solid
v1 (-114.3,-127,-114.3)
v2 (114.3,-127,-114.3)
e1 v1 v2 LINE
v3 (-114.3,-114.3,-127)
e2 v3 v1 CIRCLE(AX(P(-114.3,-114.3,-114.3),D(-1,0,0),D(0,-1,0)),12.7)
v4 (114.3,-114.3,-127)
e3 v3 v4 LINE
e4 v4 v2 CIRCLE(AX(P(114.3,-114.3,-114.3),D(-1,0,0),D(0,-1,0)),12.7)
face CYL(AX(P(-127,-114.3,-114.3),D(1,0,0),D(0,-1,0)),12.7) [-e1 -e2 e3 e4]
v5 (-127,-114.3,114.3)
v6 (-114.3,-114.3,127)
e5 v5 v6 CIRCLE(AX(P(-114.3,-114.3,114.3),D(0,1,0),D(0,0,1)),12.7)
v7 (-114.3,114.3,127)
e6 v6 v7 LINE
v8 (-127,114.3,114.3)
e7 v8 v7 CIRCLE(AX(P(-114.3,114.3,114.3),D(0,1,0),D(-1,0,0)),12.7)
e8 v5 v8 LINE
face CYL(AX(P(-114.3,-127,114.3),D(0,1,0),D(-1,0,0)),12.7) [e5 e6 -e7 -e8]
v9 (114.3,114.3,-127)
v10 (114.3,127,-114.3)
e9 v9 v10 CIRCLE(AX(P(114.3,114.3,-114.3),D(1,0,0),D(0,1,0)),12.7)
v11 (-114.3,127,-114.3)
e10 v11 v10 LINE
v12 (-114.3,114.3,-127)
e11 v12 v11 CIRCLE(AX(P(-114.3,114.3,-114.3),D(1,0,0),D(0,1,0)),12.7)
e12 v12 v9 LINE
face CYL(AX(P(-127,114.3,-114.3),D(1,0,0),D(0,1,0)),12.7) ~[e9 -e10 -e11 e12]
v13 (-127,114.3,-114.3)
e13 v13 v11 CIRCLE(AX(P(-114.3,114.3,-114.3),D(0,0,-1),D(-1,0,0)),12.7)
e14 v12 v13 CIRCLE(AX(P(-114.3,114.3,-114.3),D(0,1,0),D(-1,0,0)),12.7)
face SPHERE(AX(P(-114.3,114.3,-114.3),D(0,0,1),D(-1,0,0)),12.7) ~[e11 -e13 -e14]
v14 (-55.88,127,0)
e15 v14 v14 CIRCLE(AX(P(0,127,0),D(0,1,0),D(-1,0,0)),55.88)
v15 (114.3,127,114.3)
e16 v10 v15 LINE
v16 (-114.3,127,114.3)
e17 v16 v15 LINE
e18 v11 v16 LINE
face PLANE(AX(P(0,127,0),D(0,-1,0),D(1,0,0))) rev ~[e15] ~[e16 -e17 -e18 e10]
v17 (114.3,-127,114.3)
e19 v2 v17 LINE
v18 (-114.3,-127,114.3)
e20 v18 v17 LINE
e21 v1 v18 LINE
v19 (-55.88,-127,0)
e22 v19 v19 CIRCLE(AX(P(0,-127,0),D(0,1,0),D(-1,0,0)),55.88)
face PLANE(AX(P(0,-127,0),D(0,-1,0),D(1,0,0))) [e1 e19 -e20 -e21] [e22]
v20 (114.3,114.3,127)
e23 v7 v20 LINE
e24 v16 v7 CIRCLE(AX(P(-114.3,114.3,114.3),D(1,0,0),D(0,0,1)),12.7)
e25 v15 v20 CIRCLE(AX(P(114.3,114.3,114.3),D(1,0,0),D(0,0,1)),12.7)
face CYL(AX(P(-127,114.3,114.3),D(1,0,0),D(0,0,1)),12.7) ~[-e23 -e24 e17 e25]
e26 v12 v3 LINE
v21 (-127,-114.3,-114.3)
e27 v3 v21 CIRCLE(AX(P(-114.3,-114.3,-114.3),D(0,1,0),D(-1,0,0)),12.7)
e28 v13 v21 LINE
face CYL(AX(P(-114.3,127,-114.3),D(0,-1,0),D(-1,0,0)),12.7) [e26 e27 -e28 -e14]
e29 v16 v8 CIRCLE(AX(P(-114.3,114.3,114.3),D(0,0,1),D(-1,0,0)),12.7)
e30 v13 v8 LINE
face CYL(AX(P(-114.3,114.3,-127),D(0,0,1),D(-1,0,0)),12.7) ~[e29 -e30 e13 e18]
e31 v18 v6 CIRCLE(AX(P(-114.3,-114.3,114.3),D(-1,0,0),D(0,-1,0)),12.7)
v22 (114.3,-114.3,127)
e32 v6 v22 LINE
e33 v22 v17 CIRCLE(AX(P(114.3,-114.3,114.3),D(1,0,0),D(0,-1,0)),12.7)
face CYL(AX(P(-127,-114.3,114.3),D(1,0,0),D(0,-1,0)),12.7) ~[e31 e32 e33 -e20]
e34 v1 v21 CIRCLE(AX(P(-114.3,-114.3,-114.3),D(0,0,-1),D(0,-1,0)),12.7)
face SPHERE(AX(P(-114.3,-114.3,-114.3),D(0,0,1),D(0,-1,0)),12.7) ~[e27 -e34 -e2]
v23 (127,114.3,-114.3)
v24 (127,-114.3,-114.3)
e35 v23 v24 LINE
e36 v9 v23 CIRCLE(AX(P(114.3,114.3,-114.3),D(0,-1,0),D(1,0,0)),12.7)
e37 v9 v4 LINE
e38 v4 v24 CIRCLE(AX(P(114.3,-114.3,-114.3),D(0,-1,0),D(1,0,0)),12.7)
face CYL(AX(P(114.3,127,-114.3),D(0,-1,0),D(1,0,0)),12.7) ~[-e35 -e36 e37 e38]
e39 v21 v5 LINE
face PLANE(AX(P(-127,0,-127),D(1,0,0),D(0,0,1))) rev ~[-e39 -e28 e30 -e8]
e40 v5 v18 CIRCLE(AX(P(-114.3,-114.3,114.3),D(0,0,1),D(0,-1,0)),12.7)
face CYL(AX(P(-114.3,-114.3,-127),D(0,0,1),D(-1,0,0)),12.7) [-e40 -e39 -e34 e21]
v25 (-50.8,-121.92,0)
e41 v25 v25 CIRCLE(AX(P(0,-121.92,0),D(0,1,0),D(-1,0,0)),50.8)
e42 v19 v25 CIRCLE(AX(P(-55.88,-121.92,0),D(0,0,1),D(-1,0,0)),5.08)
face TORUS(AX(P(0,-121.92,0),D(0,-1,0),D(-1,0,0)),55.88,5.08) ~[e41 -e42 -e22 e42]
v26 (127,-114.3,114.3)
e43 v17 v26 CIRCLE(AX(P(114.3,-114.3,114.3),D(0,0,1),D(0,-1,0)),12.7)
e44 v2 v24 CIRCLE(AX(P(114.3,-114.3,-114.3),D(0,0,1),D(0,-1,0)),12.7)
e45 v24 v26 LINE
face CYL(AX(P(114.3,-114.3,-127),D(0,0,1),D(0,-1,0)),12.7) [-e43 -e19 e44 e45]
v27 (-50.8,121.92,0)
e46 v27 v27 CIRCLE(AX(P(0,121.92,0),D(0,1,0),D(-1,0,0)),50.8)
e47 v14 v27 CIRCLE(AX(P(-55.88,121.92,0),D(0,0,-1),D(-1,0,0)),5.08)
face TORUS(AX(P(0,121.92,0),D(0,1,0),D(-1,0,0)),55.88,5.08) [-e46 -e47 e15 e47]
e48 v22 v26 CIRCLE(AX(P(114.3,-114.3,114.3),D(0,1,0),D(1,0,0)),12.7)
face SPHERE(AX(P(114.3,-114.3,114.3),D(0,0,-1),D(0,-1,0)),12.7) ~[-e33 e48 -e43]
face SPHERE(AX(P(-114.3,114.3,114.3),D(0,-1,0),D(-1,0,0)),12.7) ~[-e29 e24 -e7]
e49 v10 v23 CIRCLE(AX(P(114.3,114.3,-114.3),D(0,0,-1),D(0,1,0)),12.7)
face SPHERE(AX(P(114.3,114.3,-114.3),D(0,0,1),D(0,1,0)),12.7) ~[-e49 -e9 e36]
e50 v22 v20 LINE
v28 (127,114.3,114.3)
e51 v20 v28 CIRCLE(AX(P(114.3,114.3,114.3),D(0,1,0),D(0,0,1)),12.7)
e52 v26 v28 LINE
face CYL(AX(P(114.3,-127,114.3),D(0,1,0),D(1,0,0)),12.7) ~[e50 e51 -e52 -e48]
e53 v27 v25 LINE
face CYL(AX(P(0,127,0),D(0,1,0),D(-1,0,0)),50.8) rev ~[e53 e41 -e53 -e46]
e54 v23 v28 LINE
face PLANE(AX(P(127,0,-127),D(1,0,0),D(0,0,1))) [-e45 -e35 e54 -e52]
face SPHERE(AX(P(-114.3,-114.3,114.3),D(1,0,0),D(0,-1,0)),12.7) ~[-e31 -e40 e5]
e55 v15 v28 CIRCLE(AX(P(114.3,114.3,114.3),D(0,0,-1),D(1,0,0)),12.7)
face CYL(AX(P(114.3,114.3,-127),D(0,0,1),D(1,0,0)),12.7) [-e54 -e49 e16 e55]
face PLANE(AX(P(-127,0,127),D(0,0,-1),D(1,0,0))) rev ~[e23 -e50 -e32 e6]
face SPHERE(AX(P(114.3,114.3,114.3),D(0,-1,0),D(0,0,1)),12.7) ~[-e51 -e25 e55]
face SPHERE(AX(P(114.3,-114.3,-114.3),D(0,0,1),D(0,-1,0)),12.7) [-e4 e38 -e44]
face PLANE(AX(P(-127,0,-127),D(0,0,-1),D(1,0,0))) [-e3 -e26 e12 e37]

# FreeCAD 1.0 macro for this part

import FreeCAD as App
import Part
import Sketcher
Q = App.Units.Quantity


def edges_at(feature, points):
    """Names of the edges that pass closest to the given points."""
    edges = feature.Shape.Edges
    near = lambda p: min(range(len(edges)), key=lambda i: edges[i].distToShape(Part.Vertex(*p))[0])
    return sorted({f"Edge{near(p) + 1}" for p in points})

doc = App.newDocument("Part")
body = doc.addObject("PartDesign::Body", "Body")

# Sketch on XZ plane
sketch1 = doc.addObject("Sketcher::SketchObject", "Sketch")
body.addObject(sketch1)
sketch1.AttachmentSupport = (doc.XZ_Plane, [""])
sketch1.MapMode = "FlatFace"
sketch1.addGeometry([
    Part.LineSegment(App.Vector(-127, 127, 0), App.Vector(-127, -127, 0)),
    Part.LineSegment(App.Vector(-127, -127, 0), App.Vector(127, -127, 0)),
    Part.LineSegment(App.Vector(127, -127, 0), App.Vector(127, 127, 0)),
    Part.LineSegment(App.Vector(127, 127, 0), App.Vector(-127, 127, 0)),
], False)
sketch1.addConstraint([
    Sketcher.Constraint("Coincident", 0, 2, 1, 1),
    Sketcher.Constraint("Coincident", 1, 2, 2, 1),
    Sketcher.Constraint("Coincident", 2, 2, 3, 1),
    Sketcher.Constraint("Coincident", 3, 2, 0, 1),
    Sketcher.Constraint("Vertical", 0),
    Sketcher.Constraint("Horizontal", 1),
    Sketcher.Constraint("Vertical", 2),
    Sketcher.Constraint("Horizontal", 3),
    Sketcher.Constraint("Symmetric", 0, 2, 2, 2, -1, 1),
    Sketcher.Constraint("Equal", 3, 0),
    Sketcher.Constraint("DistanceX", 1, 1, 1, 2, Q("10 in")),
])
pad1 = doc.addObject("PartDesign::Pad", "Pad")
body.addObject(pad1)
pad1.Profile = sketch1
pad1.Length = Q("10 in")
pad1.Midplane = True
doc.recompute()

fillet = doc.addObject("PartDesign::Fillet", "Fillet")
body.addObject(fillet)
fillet.Base = (pad1, ["Edge1"])
fillet.UseAllEdges = True
fillet.Radius = Q("0.5 in")

# Sketch on XZ plane
sketch2 = doc.addObject("Sketcher::SketchObject", "Sketch001")
body.addObject(sketch2)
sketch2.AttachmentSupport = (doc.XZ_Plane, [""])
sketch2.MapMode = "FlatFace"
sketch2.AttachmentOffset = App.Placement(App.Vector(0, 0, -5 * 25.4), App.Rotation())
sketch2.addGeometry(Part.Circle(App.Vector(0, 0, 0), App.Vector(0, 0, 1), 51), False)
sketch2.addConstraint([
    Sketcher.Constraint("Coincident", 0, 3, -1, 1),
    Sketcher.Constraint("Diameter", 0, Q("4 in")),
])
pocket1 = doc.addObject("PartDesign::Pocket", "Pocket")
body.addObject(pocket1)
pocket1.Profile = sketch2
pocket1.Type = "ThroughAll"
pocket1.Reversed = True
doc.recompute()

fillet2 = doc.addObject("PartDesign::Fillet", "Fillet001")
body.addObject(fillet2)
fillet2.Base = (pocket1, edges_at(pocket1, [(50.8, 127, 0), (50.8, -127, 0)]))
fillet2.Radius = Q("0.2 in")

doc.recompute()
